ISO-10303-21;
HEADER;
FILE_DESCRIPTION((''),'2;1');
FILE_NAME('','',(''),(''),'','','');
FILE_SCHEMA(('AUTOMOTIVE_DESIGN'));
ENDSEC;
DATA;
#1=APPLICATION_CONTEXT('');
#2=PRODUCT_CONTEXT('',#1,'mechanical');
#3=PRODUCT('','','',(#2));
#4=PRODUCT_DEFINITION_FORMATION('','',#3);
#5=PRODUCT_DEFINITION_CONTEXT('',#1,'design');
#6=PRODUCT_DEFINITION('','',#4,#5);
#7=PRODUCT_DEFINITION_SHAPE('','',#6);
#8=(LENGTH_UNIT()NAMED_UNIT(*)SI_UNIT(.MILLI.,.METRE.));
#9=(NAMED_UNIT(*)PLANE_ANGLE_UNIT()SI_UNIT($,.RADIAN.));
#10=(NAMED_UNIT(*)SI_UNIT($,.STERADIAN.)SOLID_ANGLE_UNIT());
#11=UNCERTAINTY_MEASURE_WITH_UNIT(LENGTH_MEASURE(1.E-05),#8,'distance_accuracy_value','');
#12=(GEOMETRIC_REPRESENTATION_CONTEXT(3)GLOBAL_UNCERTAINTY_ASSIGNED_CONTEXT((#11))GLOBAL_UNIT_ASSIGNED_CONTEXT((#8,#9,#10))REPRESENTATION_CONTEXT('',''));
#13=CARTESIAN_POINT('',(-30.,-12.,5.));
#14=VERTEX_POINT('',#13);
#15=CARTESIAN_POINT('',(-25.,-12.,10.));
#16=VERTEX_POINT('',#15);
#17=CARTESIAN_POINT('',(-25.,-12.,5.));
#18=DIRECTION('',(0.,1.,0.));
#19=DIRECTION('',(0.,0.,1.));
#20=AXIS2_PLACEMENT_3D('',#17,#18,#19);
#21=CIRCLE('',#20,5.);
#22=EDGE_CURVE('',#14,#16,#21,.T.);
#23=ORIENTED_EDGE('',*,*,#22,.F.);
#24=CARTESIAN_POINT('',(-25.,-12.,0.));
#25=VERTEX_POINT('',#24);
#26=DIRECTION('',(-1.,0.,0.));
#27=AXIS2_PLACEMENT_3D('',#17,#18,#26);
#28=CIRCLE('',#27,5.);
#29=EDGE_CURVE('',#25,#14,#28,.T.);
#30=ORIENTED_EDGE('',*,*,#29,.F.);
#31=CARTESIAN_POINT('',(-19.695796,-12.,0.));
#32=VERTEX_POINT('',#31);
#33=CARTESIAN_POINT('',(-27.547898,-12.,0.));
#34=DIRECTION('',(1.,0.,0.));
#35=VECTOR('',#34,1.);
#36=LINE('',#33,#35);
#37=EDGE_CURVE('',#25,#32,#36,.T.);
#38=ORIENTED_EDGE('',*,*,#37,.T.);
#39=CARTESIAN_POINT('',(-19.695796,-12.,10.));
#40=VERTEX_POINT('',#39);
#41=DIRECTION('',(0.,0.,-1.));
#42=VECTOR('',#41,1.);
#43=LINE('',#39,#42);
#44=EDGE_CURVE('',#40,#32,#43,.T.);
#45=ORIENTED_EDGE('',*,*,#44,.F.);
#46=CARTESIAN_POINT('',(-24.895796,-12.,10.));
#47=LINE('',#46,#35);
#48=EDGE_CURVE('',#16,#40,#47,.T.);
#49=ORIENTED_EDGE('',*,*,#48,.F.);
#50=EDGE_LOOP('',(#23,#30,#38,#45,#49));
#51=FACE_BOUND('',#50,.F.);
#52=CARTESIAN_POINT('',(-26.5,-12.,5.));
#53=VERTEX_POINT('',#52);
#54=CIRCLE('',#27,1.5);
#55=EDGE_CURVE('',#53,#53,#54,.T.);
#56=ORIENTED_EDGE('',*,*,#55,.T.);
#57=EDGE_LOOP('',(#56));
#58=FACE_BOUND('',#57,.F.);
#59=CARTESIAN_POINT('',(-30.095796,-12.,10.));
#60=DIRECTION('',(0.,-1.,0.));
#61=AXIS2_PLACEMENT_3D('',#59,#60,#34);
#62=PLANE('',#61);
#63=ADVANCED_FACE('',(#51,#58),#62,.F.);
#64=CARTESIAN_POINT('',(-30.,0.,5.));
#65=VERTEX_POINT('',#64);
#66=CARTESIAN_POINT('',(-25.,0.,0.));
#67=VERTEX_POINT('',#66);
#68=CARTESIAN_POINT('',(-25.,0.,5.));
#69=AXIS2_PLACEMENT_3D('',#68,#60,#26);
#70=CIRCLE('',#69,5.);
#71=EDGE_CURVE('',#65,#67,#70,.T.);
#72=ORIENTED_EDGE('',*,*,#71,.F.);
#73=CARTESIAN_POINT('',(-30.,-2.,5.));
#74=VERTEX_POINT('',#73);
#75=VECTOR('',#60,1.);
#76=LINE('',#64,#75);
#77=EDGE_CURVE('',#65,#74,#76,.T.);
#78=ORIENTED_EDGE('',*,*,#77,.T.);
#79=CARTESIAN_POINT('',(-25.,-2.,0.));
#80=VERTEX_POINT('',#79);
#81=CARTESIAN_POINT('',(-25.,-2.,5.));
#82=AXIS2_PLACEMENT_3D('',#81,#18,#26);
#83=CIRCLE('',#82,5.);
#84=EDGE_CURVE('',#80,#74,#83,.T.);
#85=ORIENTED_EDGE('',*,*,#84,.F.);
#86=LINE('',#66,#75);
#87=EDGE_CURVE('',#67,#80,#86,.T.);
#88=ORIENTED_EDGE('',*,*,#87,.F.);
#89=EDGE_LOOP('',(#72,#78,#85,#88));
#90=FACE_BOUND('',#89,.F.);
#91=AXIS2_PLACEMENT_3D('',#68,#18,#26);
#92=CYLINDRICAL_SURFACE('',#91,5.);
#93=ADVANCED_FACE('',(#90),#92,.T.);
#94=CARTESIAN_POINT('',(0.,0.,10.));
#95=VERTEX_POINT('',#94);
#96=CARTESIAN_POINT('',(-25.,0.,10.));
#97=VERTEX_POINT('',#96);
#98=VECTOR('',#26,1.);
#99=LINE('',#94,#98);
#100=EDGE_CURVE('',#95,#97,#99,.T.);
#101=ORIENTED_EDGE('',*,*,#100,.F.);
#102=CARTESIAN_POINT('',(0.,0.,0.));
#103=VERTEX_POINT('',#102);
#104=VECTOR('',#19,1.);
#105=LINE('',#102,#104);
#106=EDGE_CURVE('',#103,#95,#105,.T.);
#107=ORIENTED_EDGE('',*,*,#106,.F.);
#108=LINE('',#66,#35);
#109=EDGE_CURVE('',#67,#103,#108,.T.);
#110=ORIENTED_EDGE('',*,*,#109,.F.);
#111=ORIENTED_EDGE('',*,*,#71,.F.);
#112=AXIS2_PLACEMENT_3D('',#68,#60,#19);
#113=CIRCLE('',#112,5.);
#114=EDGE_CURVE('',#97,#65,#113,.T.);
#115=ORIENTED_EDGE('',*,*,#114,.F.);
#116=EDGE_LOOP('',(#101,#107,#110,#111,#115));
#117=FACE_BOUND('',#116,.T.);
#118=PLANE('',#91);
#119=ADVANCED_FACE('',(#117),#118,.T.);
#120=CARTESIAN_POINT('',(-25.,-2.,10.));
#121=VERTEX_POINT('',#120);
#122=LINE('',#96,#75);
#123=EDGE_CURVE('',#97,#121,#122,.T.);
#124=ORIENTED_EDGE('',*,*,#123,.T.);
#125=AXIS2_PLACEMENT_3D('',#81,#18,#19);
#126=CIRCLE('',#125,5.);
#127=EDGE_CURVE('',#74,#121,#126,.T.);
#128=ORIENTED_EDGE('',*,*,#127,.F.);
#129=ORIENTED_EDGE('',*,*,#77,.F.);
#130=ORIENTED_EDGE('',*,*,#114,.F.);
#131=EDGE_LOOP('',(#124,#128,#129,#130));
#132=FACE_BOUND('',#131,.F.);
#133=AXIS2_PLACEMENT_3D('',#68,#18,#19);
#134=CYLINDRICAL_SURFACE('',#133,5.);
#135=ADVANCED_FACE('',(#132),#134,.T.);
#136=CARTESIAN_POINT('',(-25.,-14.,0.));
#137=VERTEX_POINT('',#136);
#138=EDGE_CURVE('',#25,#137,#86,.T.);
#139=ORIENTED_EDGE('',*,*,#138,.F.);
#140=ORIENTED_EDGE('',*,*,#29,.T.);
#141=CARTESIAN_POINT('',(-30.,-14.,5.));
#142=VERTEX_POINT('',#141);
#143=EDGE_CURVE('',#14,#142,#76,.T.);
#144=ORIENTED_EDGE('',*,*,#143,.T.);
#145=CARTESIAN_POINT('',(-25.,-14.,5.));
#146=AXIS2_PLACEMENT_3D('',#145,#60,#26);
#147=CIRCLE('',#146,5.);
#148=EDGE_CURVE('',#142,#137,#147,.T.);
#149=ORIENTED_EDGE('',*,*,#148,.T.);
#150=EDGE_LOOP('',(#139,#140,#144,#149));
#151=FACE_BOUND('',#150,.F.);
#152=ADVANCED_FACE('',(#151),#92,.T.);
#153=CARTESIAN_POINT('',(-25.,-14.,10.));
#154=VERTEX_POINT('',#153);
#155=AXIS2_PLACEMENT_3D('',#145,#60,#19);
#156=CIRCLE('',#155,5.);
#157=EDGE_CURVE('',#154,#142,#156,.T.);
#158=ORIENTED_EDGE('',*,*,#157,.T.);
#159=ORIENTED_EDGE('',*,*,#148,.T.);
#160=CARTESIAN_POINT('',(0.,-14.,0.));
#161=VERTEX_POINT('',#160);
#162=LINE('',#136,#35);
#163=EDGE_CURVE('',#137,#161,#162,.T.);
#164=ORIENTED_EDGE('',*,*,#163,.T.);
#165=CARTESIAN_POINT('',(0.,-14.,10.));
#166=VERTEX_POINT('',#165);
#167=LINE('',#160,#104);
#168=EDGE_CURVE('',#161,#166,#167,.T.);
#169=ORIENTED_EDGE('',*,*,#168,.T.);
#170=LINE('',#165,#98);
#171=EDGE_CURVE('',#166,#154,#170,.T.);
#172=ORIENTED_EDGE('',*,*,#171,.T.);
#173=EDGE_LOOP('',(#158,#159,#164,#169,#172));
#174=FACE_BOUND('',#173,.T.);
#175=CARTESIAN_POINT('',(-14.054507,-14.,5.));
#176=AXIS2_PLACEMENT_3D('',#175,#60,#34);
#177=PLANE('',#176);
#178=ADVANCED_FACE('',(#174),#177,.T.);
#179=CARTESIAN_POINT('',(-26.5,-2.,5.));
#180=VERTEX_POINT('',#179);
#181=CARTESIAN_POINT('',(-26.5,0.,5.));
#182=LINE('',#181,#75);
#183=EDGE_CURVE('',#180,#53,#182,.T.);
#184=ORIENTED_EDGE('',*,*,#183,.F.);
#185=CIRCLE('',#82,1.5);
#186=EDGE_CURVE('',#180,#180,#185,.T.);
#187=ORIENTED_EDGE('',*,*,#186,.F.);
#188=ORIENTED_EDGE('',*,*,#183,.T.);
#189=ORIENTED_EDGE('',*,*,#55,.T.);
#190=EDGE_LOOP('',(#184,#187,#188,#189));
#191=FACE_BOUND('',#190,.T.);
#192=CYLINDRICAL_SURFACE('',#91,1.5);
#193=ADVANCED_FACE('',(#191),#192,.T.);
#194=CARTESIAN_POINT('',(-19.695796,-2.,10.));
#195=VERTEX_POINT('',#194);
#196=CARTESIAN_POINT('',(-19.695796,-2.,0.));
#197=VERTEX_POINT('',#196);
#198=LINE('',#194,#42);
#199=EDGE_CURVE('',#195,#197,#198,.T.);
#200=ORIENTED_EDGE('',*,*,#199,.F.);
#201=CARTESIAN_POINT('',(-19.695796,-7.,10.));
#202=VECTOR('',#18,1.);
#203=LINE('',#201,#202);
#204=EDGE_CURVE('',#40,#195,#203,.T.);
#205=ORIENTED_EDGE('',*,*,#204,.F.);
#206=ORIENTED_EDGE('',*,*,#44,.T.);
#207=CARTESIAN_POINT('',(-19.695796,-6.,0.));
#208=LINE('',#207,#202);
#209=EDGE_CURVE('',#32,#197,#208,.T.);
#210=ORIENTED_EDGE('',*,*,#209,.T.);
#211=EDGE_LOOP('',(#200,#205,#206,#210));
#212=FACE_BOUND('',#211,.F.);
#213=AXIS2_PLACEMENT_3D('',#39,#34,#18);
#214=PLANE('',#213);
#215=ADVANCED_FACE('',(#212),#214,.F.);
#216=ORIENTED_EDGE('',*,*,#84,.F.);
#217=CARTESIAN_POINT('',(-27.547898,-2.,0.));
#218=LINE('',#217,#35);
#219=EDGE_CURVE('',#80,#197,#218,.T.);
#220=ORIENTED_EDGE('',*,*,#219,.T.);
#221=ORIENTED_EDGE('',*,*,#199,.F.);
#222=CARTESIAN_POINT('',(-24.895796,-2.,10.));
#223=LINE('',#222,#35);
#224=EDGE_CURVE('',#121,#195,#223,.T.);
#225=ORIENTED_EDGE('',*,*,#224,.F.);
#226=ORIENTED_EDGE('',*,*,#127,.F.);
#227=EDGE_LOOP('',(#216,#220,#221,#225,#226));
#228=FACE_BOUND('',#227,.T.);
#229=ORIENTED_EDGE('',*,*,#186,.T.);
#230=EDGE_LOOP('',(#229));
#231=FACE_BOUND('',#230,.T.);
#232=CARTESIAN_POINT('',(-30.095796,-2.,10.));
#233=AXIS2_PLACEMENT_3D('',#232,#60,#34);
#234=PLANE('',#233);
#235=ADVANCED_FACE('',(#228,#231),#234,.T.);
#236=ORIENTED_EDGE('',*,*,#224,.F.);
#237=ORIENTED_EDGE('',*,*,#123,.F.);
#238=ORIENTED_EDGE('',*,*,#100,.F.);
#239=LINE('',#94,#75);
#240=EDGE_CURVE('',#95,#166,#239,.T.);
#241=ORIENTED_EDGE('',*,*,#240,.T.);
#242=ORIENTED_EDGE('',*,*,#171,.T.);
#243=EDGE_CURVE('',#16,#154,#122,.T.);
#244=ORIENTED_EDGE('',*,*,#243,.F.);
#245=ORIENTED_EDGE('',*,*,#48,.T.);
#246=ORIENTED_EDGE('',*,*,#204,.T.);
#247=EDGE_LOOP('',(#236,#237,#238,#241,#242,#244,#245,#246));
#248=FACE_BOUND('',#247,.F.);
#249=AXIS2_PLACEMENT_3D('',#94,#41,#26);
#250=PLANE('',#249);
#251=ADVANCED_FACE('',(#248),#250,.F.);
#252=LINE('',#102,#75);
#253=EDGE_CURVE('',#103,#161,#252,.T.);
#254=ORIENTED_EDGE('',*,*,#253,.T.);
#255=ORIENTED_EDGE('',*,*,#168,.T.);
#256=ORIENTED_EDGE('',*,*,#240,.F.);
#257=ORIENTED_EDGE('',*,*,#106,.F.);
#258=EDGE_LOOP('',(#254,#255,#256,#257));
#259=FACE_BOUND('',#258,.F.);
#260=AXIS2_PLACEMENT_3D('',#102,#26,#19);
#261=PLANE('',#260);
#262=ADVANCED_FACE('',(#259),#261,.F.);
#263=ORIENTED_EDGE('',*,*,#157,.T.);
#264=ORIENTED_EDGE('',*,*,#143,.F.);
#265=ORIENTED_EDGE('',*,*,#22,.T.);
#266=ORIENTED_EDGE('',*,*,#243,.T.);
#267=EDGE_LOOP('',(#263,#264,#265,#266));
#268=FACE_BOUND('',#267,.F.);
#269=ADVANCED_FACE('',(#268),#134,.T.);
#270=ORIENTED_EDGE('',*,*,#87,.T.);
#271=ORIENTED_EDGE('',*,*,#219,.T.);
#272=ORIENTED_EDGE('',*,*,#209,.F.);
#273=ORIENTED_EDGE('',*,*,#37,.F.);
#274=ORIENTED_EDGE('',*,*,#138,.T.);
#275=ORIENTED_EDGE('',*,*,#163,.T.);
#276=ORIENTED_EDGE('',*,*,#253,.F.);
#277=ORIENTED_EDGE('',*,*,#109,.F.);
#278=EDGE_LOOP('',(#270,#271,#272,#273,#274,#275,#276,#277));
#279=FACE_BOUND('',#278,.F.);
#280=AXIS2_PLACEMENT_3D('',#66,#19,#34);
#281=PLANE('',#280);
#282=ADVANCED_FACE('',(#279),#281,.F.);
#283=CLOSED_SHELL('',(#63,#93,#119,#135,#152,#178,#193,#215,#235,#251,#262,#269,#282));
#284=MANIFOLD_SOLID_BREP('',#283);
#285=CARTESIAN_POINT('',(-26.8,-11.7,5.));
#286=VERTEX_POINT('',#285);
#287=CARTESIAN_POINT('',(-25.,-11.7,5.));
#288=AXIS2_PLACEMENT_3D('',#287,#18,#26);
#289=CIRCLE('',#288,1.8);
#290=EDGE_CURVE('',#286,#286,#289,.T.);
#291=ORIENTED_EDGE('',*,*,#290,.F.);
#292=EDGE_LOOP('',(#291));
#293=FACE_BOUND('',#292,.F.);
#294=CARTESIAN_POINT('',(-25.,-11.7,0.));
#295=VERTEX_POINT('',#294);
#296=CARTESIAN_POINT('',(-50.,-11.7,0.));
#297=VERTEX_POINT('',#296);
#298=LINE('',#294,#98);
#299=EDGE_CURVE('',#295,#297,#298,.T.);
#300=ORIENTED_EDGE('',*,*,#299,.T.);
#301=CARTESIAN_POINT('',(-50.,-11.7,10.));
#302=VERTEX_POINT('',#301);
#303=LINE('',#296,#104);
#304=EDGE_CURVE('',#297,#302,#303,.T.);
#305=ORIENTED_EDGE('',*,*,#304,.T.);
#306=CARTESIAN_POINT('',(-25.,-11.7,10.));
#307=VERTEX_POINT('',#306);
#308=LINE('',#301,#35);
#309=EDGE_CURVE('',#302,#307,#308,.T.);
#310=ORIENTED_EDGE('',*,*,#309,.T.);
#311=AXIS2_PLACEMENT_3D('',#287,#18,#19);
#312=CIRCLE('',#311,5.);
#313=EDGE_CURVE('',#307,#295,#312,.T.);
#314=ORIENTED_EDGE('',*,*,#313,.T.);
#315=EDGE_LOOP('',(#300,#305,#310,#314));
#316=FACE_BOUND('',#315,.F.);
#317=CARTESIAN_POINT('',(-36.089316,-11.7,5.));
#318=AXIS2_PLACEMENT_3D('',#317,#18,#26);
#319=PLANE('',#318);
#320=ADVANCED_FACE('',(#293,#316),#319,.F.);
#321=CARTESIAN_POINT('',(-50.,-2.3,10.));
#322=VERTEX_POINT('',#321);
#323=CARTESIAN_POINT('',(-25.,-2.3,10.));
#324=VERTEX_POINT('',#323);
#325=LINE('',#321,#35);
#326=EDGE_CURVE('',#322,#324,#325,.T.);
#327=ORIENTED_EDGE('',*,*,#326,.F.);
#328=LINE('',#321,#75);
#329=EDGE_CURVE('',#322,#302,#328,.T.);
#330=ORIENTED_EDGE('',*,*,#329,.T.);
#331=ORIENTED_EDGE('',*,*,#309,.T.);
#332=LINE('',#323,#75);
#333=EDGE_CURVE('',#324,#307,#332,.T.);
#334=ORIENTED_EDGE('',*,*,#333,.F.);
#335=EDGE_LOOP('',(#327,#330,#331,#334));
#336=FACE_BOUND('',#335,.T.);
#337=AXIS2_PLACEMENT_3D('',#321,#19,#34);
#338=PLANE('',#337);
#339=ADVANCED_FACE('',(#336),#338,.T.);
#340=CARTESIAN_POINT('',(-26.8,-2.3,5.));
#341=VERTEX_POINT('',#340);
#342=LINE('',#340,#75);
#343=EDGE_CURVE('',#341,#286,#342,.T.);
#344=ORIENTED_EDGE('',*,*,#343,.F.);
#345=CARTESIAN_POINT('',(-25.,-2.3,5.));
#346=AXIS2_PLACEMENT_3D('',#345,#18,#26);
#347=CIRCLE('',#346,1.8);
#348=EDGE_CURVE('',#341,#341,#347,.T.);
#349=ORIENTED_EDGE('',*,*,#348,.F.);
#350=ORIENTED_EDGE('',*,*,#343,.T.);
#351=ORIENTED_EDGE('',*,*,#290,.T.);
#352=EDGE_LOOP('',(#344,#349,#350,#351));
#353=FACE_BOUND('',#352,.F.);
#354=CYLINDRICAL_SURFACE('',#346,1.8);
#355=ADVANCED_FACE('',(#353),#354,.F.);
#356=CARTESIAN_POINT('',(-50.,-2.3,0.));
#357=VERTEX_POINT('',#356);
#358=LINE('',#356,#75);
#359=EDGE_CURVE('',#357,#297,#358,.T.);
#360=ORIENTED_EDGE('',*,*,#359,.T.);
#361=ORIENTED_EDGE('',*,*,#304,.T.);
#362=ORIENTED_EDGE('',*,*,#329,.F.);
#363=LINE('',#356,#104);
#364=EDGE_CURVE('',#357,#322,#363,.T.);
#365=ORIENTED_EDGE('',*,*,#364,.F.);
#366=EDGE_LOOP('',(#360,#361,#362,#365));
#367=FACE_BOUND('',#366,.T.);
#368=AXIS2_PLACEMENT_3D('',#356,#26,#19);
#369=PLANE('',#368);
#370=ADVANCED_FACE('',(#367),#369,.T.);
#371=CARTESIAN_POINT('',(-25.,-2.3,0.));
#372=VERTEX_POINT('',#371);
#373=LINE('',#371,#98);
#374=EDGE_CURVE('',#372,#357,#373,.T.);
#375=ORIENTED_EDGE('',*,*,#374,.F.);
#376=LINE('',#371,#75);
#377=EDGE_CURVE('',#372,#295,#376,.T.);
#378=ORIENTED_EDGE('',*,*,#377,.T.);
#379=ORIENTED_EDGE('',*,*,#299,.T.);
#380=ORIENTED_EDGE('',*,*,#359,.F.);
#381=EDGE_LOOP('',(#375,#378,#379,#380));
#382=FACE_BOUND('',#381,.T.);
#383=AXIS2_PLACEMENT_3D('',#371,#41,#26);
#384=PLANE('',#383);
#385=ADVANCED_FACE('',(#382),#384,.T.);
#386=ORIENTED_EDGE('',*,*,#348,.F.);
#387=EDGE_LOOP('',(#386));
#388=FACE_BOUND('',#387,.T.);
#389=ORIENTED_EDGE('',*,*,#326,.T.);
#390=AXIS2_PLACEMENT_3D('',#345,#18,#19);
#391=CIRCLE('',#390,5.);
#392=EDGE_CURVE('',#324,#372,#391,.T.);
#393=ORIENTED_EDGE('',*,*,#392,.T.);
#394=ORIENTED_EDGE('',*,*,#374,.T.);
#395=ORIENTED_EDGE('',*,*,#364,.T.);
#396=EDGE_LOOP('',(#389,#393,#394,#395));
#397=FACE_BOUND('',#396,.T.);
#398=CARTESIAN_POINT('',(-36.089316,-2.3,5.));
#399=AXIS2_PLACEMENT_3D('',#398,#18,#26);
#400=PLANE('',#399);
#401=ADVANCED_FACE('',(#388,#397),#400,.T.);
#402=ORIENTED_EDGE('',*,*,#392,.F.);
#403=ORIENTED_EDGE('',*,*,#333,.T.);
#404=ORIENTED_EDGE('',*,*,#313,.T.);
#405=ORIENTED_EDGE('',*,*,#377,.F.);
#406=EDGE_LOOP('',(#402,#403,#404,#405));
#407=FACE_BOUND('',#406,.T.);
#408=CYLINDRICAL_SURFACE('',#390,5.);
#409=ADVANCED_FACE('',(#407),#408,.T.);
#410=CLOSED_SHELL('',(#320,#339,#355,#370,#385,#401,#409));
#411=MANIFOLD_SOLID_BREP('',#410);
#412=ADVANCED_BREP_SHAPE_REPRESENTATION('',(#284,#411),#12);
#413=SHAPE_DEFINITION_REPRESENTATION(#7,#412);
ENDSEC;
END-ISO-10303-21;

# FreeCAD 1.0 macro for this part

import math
import FreeCAD as App
import Part
import Sketcher
Q = App.Units.Quantity


def add_polygon(sketch, points):
    """Adds a closed chain of lines whose ends are joined by coincident constraints."""
    first, n = sketch.GeometryCount, len(points)
    for a, b in zip(points, points[1:] + points[:1]):
        sketch.addGeometry(Part.LineSegment(App.Vector(*a, 0), App.Vector(*b, 0)), False)
    for i in range(n):
        sketch.addConstraint(Sketcher.Constraint("Coincident", first + i, 2, first + (i + 1) % n, 1))

doc = App.newDocument("Part")
body = doc.addObject("PartDesign::Body", "Body")

sketch1 = doc.addObject("Sketcher::SketchObject", "Sketch")
body.addObject(sketch1)
sketch1.AttachmentSupport = (doc.XZ_Plane, [""])
sketch1.MapMode = "FlatFace"
sketch1.addGeometry([
    Part.LineSegment(App.Vector(-25, 0, 0), App.Vector(0, 0, 0)),
    Part.LineSegment(App.Vector(0, 0, 0), App.Vector(0, 10, 0)),
    Part.LineSegment(App.Vector(0, 10, 0), App.Vector(-25, 10, 0)),
    Part.ArcOfCircle(Part.Circle(App.Vector(-25, 5, 0), App.Vector(0, 0, 1), 5), math.radians(90), math.radians(180)),
    Part.ArcOfCircle(Part.Circle(App.Vector(-25, 5, 0), App.Vector(0, 0, 1), 5), math.radians(180), math.radians(270)),
], False)
sketch1.addConstraint([
    Sketcher.Constraint("Coincident", 0, 2, 1, 1),
    Sketcher.Constraint("Coincident", 1, 2, 2, 1),
    Sketcher.Constraint("Tangent", 2, 2, 3, 1),
    Sketcher.Constraint("Tangent", 3, 2, 4, 1),
    Sketcher.Constraint("Tangent", 4, 2, 0, 1),
    Sketcher.Constraint("Horizontal", 0),
    Sketcher.Constraint("Vertical", 1),
    Sketcher.Constraint("Horizontal", 2),
    Sketcher.Constraint("Coincident", 0, 2, -1, 1),
    Sketcher.Constraint("Equal", 3, 4),
    Sketcher.Constraint("Horizontal", 4, 3, 3, 2),
    Sketcher.Constraint("Radius", 3, Q("5 mm")),
    Sketcher.Constraint("DistanceX", 0, 1, 0, 2, Q("25 mm")),
])
pad1 = doc.addObject("PartDesign::Pad", "Pad")
body.addObject(pad1)
pad1.Profile = sketch1
pad1.Length = 14

sketch2 = doc.addObject("Sketcher::SketchObject", "Sketch001")
body.addObject(sketch2)
sketch2.AttachmentSupport = (doc.XY_Plane, [""])
sketch2.MapMode = "FlatFace"
sketch2.AttachmentOffset = App.Placement(App.Vector(0, 0, 10), App.Rotation())
add_polygon(sketch2, [(-30, -2), (-30, -12), (-20, -12), (-20, -2)])
sketch2.addConstraint([
    Sketcher.Constraint("Vertical", 0),
    Sketcher.Constraint("Horizontal", 1),
    Sketcher.Constraint("Vertical", 2),
    Sketcher.Constraint("Horizontal", 3),
    Sketcher.Constraint("DistanceY", 0, 2, 0, 1, Q("10 mm")),
    Sketcher.Constraint("DistanceX", 1, 1, 1, 2, Q("10.4 mm")),
    Sketcher.Constraint("DistanceY", 0, 2, -1, 1, Q("12 mm")),
    Sketcher.Constraint("DistanceX", 0, 2, -1, 1, Q("30.095796 mm")),
])
pocket1 = doc.addObject("PartDesign::Pocket", "Pocket")
body.addObject(pocket1)
pocket1.Profile = sketch2
pocket1.Type = "ThroughAll"

sketch3 = doc.addObject("Sketcher::SketchObject", "Sketch002")
body.addObject(sketch3)
sketch3.AttachmentSupport = (doc.XZ_Plane, [""])
sketch3.MapMode = "FlatFace"
sketch3.addGeometry(Part.Circle(App.Vector(-25, 5, 0), App.Vector(0, 0, 1), 1.5), False)
sketch3.addConstraint([
    Sketcher.Constraint("Diameter", 0, Q("3 mm")),
    Sketcher.Constraint("DistanceX", 0, 3, -1, 1, Q("25 mm")),
    Sketcher.Constraint("DistanceY", -1, 1, 0, 3, Q("5 mm")),
])
pad2 = doc.addObject("PartDesign::Pad", "Pad001")
body.addObject(pad2)
pad2.Profile = sketch3
pad2.Type = "UpToLast"
body2 = doc.addObject("PartDesign::Body", "Body001")

sketch4 = doc.addObject("Sketcher::SketchObject", "Sketch003")
body2.addObject(sketch4)
sketch4.AttachmentSupport = (doc.getObject("XZ_Plane001"), [""])
sketch4.MapMode = "FlatFace"
sketch4.AttachmentOffset = App.Placement(App.Vector(0, 0, 2.3), App.Rotation())
sketch4.addGeometry([
    Part.LineSegment(App.Vector(-50, 10, 0), App.Vector(-25, 10, 0)),
    Part.ArcOfCircle(Part.Circle(App.Vector(-25, 5, 0), App.Vector(0, 0, 1), 5), math.radians(-90), math.radians(90)),
    Part.LineSegment(App.Vector(-25, 0, 0), App.Vector(-50, 0, 0)),
    Part.LineSegment(App.Vector(-50, 0, 0), App.Vector(-50, 10, 0)),
    Part.Circle(App.Vector(-25, 5, 0), App.Vector(0, 0, 1), 1.8),
], False)
sketch4.addConstraint([
    Sketcher.Constraint("Tangent", 0, 2, 1, 2),
    Sketcher.Constraint("Tangent", 1, 1, 2, 1),
    Sketcher.Constraint("Coincident", 2, 2, 3, 1),
    Sketcher.Constraint("Coincident", 3, 2, 0, 1),
    Sketcher.Constraint("Horizontal", 0),
    Sketcher.Constraint("Horizontal", 2),
    Sketcher.Constraint("Vertical", 3),
    Sketcher.Constraint("Coincident", 4, 3, 1, 3),
    Sketcher.Constraint("PointOnObject", 1, 1, -1),
    Sketcher.Constraint("Radius", 1, Q("5 mm")),
    Sketcher.Constraint("Diameter", 4, Q("3.6 mm")),
    Sketcher.Constraint("DistanceX", 0, 1, 0, 2, Q("25 mm")),
    Sketcher.Constraint("DistanceX", 1, 3, -1, 1, Q("25 mm")),
])
pad3 = doc.addObject("PartDesign::Pad", "Pad002")
body2.addObject(pad3)
pad3.Profile = sketch4
pad3.Length = 9.4

doc.recompute()
